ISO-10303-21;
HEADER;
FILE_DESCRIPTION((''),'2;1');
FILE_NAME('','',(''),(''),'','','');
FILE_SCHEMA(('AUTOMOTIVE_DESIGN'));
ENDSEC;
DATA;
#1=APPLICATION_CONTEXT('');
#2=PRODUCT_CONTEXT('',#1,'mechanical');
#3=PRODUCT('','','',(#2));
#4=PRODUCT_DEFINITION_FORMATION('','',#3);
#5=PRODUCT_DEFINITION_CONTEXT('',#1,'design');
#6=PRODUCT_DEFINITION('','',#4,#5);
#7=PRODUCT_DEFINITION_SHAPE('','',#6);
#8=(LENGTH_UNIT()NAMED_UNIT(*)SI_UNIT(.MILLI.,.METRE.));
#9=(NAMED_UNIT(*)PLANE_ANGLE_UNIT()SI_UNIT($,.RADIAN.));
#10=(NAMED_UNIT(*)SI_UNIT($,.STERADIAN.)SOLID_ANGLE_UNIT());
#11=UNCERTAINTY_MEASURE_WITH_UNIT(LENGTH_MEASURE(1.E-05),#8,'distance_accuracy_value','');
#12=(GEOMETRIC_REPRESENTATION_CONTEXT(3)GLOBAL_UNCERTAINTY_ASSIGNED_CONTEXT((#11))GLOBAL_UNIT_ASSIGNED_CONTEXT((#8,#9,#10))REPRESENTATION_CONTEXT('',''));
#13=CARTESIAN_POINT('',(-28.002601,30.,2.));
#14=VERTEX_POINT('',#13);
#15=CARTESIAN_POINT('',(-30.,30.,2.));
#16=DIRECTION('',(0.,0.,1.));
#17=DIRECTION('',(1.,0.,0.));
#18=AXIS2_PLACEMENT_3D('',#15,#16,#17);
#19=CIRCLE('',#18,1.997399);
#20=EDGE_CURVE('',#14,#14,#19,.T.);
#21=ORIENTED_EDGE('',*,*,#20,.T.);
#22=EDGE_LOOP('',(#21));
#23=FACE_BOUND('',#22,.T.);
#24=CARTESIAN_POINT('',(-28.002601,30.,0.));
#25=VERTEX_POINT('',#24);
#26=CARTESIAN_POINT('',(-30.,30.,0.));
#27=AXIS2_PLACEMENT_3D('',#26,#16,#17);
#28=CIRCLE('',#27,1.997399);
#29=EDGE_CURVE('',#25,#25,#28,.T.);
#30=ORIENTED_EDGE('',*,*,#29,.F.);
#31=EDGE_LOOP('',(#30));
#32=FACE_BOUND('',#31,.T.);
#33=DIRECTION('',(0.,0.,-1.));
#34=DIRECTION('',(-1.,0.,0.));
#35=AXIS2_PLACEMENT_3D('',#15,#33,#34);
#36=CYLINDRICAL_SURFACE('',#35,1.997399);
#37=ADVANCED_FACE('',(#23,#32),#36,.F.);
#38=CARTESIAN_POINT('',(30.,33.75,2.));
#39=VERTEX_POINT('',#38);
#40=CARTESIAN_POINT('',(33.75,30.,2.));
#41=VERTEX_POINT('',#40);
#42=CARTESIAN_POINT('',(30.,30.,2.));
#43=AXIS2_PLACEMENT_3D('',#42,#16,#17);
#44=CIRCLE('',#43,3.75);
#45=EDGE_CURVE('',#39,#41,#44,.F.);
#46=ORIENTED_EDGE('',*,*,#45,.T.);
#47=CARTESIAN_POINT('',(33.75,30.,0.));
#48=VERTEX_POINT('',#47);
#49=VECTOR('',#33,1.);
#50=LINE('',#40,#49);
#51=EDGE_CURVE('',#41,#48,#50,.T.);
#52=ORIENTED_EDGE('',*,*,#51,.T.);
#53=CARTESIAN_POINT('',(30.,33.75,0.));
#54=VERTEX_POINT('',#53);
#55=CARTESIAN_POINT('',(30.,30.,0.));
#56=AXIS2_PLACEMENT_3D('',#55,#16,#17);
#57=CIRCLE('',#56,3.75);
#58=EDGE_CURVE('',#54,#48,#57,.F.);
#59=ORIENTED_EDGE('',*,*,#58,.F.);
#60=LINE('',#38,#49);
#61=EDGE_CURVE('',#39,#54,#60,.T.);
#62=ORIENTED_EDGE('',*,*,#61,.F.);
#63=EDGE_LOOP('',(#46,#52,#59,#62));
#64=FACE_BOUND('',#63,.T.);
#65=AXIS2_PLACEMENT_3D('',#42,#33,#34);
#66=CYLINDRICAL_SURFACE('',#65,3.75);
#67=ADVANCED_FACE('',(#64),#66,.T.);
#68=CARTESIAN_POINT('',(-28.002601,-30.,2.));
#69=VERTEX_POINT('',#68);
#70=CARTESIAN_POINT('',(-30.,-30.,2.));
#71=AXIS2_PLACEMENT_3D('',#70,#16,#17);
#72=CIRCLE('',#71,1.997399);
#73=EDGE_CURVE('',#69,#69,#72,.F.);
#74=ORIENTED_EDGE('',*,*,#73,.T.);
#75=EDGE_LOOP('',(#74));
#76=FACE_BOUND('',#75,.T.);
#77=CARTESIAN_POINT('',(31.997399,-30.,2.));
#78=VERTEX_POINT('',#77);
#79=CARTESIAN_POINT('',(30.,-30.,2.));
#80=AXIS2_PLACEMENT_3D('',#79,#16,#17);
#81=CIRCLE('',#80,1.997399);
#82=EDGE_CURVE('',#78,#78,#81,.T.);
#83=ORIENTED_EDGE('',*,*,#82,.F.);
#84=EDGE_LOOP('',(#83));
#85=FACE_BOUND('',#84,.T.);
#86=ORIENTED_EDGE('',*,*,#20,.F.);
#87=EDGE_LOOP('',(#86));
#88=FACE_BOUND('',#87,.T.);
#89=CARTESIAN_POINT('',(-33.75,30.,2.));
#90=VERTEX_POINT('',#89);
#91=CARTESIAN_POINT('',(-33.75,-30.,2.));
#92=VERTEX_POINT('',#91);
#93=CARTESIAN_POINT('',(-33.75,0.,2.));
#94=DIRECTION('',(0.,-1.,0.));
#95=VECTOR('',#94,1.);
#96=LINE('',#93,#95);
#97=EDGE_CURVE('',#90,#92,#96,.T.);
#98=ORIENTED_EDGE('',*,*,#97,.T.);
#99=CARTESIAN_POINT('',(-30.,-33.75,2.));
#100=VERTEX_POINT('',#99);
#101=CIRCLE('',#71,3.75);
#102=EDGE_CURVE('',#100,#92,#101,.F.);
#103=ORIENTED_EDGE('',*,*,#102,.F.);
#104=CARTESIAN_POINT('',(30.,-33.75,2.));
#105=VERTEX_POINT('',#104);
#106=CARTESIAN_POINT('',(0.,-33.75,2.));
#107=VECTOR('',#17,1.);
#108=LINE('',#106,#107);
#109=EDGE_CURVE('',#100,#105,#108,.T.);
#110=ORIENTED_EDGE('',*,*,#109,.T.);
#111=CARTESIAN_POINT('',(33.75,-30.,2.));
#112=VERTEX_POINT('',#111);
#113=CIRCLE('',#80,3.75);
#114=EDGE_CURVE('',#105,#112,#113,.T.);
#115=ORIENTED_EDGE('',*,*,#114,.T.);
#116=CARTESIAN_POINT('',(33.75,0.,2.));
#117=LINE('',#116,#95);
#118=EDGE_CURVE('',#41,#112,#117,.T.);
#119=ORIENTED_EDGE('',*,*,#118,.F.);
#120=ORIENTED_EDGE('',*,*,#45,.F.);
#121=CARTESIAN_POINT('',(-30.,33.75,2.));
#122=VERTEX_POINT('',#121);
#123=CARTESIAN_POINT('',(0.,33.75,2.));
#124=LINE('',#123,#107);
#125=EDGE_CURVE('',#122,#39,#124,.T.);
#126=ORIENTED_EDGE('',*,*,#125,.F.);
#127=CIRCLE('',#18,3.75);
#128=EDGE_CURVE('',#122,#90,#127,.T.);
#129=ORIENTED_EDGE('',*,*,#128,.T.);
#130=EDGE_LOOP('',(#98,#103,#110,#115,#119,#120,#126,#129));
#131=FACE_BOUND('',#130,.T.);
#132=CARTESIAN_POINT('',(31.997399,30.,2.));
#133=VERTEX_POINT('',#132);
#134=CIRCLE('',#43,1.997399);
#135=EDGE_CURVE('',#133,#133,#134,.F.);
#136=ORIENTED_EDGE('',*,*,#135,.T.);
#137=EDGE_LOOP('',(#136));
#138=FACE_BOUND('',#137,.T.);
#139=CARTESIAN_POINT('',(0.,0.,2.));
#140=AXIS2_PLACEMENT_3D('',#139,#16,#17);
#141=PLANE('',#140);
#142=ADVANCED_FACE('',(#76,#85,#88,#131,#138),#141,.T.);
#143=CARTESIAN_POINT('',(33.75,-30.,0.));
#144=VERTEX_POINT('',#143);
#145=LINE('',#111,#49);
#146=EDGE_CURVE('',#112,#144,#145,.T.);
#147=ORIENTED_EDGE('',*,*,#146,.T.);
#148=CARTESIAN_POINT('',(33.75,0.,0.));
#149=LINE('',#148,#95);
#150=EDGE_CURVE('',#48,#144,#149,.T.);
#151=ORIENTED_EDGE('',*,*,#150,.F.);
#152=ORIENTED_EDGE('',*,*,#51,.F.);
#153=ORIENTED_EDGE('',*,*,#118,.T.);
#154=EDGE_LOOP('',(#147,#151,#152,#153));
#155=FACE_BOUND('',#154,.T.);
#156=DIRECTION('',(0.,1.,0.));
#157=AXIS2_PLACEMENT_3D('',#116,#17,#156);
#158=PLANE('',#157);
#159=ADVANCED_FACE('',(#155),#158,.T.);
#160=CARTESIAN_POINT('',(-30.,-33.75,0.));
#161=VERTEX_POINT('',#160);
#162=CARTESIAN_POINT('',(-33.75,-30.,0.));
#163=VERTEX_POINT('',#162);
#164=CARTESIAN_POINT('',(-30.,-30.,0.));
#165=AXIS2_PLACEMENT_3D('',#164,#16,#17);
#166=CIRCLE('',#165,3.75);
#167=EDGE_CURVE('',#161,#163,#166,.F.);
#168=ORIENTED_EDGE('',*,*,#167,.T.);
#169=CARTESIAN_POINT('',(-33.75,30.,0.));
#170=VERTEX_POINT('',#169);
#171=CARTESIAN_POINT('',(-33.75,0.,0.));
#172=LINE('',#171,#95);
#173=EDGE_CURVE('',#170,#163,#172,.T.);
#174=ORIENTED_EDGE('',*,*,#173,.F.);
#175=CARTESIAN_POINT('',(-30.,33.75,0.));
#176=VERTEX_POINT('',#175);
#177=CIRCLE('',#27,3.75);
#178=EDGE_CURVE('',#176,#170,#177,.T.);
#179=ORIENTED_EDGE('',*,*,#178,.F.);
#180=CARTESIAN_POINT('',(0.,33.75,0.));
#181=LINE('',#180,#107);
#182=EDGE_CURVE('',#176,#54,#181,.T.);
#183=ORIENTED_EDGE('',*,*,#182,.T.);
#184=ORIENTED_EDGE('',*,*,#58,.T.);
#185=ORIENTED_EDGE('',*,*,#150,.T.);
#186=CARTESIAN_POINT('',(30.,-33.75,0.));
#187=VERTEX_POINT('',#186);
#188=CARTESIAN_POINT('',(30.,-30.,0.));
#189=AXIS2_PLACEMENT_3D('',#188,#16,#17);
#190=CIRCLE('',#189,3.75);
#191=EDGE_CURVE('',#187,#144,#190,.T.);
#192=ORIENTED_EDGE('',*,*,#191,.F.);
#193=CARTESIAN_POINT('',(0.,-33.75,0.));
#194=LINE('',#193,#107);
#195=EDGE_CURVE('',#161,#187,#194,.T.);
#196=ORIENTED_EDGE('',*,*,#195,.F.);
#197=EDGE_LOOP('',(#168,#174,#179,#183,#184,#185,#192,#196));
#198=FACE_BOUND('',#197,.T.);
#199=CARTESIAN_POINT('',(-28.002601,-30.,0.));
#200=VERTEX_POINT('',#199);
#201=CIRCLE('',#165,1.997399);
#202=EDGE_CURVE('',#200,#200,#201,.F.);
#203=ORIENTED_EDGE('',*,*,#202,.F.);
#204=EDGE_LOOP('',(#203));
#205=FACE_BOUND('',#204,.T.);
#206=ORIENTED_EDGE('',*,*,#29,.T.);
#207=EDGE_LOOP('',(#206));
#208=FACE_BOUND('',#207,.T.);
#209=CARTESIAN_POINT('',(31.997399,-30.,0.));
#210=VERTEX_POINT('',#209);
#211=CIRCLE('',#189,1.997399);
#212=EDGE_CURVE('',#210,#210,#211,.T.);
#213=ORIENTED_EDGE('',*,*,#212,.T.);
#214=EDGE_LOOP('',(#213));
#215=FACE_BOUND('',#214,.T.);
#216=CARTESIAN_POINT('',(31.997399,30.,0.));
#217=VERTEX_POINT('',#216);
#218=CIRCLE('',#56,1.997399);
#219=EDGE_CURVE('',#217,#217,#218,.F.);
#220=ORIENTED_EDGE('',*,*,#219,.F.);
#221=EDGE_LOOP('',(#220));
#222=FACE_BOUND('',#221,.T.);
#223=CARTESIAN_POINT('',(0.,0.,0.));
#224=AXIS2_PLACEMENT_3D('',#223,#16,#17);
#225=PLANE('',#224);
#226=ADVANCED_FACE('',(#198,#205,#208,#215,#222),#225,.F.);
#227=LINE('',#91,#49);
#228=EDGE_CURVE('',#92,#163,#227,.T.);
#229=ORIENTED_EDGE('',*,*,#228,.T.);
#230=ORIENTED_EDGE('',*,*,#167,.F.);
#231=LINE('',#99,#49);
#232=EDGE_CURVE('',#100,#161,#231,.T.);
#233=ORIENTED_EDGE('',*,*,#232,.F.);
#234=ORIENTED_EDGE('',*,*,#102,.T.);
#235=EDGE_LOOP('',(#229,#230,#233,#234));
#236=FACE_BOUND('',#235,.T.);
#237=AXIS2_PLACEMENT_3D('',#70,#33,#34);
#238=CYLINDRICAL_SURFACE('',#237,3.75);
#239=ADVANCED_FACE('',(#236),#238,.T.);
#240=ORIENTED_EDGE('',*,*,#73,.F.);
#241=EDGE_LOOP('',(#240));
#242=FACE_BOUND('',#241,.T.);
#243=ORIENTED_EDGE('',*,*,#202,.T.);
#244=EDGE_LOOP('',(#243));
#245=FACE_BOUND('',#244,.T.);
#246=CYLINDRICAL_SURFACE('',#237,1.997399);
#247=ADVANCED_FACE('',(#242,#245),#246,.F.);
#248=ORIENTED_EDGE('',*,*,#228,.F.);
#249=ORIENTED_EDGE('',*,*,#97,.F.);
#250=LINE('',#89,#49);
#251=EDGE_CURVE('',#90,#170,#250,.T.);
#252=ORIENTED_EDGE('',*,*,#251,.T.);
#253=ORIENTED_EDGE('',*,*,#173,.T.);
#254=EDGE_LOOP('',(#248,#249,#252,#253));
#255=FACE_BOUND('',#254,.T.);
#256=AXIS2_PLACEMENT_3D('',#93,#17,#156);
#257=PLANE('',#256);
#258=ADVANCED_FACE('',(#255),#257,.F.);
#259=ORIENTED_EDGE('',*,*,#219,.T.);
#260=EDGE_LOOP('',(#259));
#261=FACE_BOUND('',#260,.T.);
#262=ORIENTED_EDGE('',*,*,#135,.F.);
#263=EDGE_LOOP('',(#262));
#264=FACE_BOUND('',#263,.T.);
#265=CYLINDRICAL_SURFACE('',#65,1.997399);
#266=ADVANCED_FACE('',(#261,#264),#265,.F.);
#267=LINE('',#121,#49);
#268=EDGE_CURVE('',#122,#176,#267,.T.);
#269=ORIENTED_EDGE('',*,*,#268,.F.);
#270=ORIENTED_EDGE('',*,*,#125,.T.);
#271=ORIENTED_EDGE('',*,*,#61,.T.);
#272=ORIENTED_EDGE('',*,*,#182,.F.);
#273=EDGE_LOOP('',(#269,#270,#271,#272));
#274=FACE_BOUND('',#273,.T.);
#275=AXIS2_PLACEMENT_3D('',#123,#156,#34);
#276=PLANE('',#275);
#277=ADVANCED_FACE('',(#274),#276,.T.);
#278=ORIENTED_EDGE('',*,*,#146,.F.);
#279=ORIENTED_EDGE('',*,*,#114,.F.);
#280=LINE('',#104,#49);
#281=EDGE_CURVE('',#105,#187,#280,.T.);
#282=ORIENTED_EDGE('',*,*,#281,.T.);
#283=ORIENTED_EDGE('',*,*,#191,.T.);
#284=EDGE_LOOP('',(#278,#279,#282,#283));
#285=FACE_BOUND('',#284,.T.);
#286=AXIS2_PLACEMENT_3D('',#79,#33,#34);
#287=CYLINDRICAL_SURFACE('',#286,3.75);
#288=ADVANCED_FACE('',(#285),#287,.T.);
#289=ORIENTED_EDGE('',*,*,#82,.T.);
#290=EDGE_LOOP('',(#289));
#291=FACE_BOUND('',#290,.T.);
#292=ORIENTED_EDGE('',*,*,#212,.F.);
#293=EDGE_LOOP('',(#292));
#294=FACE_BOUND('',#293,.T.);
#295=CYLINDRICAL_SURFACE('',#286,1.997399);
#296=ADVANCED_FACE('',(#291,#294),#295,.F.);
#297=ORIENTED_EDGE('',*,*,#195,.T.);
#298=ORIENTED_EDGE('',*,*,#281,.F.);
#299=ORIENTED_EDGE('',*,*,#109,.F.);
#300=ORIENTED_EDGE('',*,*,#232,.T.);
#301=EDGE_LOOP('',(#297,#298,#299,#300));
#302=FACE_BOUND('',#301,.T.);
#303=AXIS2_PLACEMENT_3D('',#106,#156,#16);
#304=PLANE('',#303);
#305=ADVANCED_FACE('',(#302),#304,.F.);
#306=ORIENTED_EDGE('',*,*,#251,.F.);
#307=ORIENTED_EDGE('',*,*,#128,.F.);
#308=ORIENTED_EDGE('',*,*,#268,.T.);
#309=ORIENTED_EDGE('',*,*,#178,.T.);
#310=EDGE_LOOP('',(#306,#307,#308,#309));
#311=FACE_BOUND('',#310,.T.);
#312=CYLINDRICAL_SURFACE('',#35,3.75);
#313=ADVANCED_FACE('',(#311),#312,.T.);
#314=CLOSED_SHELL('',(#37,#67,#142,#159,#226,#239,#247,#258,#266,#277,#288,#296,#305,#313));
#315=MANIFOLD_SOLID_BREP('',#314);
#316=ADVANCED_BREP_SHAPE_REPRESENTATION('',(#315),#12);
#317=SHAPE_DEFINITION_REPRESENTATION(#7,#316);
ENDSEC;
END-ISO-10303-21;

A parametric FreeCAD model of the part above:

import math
import FreeCAD as App
import Part
import Sketcher

V = App.Vector
Q = App.Units.Quantity

doc = App.newDocument("Part")
params = doc.addObject("Spreadsheet::Sheet", "Params")
for row, (alias, value) in enumerate([
    ("sketch1_width", "60 mm"),
    ("sketch1_radius", "3.75 mm"),
    ("pad1_length", "2 mm"),
], start=1):
    params.set(f"A{row}", alias)
    params.set(f"B{row}", "=" + value)
    params.setAlias(f"B{row}", alias)

body = doc.addObject("PartDesign::Body", "Body")

# Sketch on XY plane
sketch1 = body.newObject("Sketcher::SketchObject", "Sketch")
sketch1.AttachmentSupport = (doc.getObject("XY_Plane"), [""])
sketch1.MapMode = "FlatFace"
sketch1.addGeometry(Part.LineSegment(V(30, 33.75, 0), V(-30, 33.75, 0)), False)
sketch1.addGeometry(Part.ArcOfCircle(Part.Circle(V(-30, 30, 0), V(0, 0, 1), 3.75), math.radians(90), math.radians(180)), False)
sketch1.addGeometry(Part.LineSegment(V(-33.75, 30, 0), V(-33.75, -30, 0)), False)
sketch1.addGeometry(Part.ArcOfCircle(Part.Circle(V(-30, -30, 0), V(0, 0, 1), 3.75), math.radians(-180), math.radians(-90)), False)
sketch1.addGeometry(Part.LineSegment(V(-30, -33.75, 0), V(30, -33.75, 0)), False)
sketch1.addGeometry(Part.ArcOfCircle(Part.Circle(V(30, -30, 0), V(0, 0, 1), 3.75), math.radians(-90), math.radians(0)), False)
sketch1.addGeometry(Part.LineSegment(V(33.75, -30, 0), V(33.75, 30, 0)), False)
sketch1.addGeometry(Part.ArcOfCircle(Part.Circle(V(30, 30, 0), V(0, 0, 1), 3.75), math.radians(0), math.radians(90)), False)
sketch1.addGeometry(Part.Circle(V(-30, -30, 0), V(0, 0, 1), 1.997399), False)
sketch1.addGeometry(Part.Circle(V(30, -30, 0), V(0, 0, 1), 1.997399), False)
sketch1.addGeometry(Part.Circle(V(-30, 30, 0), V(0, 0, 1), 1.997399), False)
sketch1.addGeometry(Part.Circle(V(30, 30, 0), V(0, 0, 1), 1.997399), False)
sketch1.addConstraint(Sketcher.Constraint("Tangent", 0, 2, 1, 1))
sketch1.addConstraint(Sketcher.Constraint("Tangent", 1, 2, 2, 1))
sketch1.addConstraint(Sketcher.Constraint("Tangent", 2, 2, 3, 1))
sketch1.addConstraint(Sketcher.Constraint("Tangent", 3, 2, 4, 1))
sketch1.addConstraint(Sketcher.Constraint("Tangent", 4, 2, 5, 1))
sketch1.addConstraint(Sketcher.Constraint("Tangent", 5, 2, 6, 1))
sketch1.addConstraint(Sketcher.Constraint("Tangent", 6, 2, 7, 1))
sketch1.addConstraint(Sketcher.Constraint("Tangent", 7, 2, 0, 1))
sketch1.addConstraint(Sketcher.Constraint("Horizontal", 0))
sketch1.addConstraint(Sketcher.Constraint("Vertical", 2))
sketch1.addConstraint(Sketcher.Constraint("Horizontal", 4))
sketch1.addConstraint(Sketcher.Constraint("Vertical", 6))
sketch1.addConstraint(Sketcher.Constraint("Coincident", 8, 3, 3, 3))
sketch1.addConstraint(Sketcher.Constraint("Coincident", 9, 3, 5, 3))
sketch1.addConstraint(Sketcher.Constraint("Coincident", 10, 3, 1, 3))
sketch1.addConstraint(Sketcher.Constraint("Coincident", 11, 3, 7, 3))
sketch1.addConstraint(Sketcher.Constraint("Equal", 1, 3))
sketch1.addConstraint(Sketcher.Constraint("Equal", 3, 5))
sketch1.addConstraint(Sketcher.Constraint("Equal", 5, 7))
sketch1.addConstraint(Sketcher.Constraint("Equal", 8, 9))
sketch1.addConstraint(Sketcher.Constraint("Equal", 9, 10))
sketch1.addConstraint(Sketcher.Constraint("Equal", 10, 11))
sketch1.addConstraint(Sketcher.Constraint("Symmetric", 1, 3, 5, 3, -1, 1))
sketch1.addConstraint(Sketcher.Constraint("Equal", 4, 2))
sketch1.addConstraint(Sketcher.Constraint("DistanceX", 0, 2, 0, 1, Q("60 mm")))
sketch1.addConstraint(Sketcher.Constraint("Radius", 1, Q("3.75 mm")))
sketch1.addConstraint(Sketcher.Constraint("Diameter", 8, Q("3.994797 mm")))
sketch1.setExpression("Constraints[24]", "Params.sketch1_width")
sketch1.setExpression("Constraints[25]", "Params.sketch1_radius")
pad1 = body.newObject("PartDesign::Pad", "Pad")
pad1.Profile = sketch1
pad1.setExpression("Length", "Params.pad1_length")

doc.recompute()
